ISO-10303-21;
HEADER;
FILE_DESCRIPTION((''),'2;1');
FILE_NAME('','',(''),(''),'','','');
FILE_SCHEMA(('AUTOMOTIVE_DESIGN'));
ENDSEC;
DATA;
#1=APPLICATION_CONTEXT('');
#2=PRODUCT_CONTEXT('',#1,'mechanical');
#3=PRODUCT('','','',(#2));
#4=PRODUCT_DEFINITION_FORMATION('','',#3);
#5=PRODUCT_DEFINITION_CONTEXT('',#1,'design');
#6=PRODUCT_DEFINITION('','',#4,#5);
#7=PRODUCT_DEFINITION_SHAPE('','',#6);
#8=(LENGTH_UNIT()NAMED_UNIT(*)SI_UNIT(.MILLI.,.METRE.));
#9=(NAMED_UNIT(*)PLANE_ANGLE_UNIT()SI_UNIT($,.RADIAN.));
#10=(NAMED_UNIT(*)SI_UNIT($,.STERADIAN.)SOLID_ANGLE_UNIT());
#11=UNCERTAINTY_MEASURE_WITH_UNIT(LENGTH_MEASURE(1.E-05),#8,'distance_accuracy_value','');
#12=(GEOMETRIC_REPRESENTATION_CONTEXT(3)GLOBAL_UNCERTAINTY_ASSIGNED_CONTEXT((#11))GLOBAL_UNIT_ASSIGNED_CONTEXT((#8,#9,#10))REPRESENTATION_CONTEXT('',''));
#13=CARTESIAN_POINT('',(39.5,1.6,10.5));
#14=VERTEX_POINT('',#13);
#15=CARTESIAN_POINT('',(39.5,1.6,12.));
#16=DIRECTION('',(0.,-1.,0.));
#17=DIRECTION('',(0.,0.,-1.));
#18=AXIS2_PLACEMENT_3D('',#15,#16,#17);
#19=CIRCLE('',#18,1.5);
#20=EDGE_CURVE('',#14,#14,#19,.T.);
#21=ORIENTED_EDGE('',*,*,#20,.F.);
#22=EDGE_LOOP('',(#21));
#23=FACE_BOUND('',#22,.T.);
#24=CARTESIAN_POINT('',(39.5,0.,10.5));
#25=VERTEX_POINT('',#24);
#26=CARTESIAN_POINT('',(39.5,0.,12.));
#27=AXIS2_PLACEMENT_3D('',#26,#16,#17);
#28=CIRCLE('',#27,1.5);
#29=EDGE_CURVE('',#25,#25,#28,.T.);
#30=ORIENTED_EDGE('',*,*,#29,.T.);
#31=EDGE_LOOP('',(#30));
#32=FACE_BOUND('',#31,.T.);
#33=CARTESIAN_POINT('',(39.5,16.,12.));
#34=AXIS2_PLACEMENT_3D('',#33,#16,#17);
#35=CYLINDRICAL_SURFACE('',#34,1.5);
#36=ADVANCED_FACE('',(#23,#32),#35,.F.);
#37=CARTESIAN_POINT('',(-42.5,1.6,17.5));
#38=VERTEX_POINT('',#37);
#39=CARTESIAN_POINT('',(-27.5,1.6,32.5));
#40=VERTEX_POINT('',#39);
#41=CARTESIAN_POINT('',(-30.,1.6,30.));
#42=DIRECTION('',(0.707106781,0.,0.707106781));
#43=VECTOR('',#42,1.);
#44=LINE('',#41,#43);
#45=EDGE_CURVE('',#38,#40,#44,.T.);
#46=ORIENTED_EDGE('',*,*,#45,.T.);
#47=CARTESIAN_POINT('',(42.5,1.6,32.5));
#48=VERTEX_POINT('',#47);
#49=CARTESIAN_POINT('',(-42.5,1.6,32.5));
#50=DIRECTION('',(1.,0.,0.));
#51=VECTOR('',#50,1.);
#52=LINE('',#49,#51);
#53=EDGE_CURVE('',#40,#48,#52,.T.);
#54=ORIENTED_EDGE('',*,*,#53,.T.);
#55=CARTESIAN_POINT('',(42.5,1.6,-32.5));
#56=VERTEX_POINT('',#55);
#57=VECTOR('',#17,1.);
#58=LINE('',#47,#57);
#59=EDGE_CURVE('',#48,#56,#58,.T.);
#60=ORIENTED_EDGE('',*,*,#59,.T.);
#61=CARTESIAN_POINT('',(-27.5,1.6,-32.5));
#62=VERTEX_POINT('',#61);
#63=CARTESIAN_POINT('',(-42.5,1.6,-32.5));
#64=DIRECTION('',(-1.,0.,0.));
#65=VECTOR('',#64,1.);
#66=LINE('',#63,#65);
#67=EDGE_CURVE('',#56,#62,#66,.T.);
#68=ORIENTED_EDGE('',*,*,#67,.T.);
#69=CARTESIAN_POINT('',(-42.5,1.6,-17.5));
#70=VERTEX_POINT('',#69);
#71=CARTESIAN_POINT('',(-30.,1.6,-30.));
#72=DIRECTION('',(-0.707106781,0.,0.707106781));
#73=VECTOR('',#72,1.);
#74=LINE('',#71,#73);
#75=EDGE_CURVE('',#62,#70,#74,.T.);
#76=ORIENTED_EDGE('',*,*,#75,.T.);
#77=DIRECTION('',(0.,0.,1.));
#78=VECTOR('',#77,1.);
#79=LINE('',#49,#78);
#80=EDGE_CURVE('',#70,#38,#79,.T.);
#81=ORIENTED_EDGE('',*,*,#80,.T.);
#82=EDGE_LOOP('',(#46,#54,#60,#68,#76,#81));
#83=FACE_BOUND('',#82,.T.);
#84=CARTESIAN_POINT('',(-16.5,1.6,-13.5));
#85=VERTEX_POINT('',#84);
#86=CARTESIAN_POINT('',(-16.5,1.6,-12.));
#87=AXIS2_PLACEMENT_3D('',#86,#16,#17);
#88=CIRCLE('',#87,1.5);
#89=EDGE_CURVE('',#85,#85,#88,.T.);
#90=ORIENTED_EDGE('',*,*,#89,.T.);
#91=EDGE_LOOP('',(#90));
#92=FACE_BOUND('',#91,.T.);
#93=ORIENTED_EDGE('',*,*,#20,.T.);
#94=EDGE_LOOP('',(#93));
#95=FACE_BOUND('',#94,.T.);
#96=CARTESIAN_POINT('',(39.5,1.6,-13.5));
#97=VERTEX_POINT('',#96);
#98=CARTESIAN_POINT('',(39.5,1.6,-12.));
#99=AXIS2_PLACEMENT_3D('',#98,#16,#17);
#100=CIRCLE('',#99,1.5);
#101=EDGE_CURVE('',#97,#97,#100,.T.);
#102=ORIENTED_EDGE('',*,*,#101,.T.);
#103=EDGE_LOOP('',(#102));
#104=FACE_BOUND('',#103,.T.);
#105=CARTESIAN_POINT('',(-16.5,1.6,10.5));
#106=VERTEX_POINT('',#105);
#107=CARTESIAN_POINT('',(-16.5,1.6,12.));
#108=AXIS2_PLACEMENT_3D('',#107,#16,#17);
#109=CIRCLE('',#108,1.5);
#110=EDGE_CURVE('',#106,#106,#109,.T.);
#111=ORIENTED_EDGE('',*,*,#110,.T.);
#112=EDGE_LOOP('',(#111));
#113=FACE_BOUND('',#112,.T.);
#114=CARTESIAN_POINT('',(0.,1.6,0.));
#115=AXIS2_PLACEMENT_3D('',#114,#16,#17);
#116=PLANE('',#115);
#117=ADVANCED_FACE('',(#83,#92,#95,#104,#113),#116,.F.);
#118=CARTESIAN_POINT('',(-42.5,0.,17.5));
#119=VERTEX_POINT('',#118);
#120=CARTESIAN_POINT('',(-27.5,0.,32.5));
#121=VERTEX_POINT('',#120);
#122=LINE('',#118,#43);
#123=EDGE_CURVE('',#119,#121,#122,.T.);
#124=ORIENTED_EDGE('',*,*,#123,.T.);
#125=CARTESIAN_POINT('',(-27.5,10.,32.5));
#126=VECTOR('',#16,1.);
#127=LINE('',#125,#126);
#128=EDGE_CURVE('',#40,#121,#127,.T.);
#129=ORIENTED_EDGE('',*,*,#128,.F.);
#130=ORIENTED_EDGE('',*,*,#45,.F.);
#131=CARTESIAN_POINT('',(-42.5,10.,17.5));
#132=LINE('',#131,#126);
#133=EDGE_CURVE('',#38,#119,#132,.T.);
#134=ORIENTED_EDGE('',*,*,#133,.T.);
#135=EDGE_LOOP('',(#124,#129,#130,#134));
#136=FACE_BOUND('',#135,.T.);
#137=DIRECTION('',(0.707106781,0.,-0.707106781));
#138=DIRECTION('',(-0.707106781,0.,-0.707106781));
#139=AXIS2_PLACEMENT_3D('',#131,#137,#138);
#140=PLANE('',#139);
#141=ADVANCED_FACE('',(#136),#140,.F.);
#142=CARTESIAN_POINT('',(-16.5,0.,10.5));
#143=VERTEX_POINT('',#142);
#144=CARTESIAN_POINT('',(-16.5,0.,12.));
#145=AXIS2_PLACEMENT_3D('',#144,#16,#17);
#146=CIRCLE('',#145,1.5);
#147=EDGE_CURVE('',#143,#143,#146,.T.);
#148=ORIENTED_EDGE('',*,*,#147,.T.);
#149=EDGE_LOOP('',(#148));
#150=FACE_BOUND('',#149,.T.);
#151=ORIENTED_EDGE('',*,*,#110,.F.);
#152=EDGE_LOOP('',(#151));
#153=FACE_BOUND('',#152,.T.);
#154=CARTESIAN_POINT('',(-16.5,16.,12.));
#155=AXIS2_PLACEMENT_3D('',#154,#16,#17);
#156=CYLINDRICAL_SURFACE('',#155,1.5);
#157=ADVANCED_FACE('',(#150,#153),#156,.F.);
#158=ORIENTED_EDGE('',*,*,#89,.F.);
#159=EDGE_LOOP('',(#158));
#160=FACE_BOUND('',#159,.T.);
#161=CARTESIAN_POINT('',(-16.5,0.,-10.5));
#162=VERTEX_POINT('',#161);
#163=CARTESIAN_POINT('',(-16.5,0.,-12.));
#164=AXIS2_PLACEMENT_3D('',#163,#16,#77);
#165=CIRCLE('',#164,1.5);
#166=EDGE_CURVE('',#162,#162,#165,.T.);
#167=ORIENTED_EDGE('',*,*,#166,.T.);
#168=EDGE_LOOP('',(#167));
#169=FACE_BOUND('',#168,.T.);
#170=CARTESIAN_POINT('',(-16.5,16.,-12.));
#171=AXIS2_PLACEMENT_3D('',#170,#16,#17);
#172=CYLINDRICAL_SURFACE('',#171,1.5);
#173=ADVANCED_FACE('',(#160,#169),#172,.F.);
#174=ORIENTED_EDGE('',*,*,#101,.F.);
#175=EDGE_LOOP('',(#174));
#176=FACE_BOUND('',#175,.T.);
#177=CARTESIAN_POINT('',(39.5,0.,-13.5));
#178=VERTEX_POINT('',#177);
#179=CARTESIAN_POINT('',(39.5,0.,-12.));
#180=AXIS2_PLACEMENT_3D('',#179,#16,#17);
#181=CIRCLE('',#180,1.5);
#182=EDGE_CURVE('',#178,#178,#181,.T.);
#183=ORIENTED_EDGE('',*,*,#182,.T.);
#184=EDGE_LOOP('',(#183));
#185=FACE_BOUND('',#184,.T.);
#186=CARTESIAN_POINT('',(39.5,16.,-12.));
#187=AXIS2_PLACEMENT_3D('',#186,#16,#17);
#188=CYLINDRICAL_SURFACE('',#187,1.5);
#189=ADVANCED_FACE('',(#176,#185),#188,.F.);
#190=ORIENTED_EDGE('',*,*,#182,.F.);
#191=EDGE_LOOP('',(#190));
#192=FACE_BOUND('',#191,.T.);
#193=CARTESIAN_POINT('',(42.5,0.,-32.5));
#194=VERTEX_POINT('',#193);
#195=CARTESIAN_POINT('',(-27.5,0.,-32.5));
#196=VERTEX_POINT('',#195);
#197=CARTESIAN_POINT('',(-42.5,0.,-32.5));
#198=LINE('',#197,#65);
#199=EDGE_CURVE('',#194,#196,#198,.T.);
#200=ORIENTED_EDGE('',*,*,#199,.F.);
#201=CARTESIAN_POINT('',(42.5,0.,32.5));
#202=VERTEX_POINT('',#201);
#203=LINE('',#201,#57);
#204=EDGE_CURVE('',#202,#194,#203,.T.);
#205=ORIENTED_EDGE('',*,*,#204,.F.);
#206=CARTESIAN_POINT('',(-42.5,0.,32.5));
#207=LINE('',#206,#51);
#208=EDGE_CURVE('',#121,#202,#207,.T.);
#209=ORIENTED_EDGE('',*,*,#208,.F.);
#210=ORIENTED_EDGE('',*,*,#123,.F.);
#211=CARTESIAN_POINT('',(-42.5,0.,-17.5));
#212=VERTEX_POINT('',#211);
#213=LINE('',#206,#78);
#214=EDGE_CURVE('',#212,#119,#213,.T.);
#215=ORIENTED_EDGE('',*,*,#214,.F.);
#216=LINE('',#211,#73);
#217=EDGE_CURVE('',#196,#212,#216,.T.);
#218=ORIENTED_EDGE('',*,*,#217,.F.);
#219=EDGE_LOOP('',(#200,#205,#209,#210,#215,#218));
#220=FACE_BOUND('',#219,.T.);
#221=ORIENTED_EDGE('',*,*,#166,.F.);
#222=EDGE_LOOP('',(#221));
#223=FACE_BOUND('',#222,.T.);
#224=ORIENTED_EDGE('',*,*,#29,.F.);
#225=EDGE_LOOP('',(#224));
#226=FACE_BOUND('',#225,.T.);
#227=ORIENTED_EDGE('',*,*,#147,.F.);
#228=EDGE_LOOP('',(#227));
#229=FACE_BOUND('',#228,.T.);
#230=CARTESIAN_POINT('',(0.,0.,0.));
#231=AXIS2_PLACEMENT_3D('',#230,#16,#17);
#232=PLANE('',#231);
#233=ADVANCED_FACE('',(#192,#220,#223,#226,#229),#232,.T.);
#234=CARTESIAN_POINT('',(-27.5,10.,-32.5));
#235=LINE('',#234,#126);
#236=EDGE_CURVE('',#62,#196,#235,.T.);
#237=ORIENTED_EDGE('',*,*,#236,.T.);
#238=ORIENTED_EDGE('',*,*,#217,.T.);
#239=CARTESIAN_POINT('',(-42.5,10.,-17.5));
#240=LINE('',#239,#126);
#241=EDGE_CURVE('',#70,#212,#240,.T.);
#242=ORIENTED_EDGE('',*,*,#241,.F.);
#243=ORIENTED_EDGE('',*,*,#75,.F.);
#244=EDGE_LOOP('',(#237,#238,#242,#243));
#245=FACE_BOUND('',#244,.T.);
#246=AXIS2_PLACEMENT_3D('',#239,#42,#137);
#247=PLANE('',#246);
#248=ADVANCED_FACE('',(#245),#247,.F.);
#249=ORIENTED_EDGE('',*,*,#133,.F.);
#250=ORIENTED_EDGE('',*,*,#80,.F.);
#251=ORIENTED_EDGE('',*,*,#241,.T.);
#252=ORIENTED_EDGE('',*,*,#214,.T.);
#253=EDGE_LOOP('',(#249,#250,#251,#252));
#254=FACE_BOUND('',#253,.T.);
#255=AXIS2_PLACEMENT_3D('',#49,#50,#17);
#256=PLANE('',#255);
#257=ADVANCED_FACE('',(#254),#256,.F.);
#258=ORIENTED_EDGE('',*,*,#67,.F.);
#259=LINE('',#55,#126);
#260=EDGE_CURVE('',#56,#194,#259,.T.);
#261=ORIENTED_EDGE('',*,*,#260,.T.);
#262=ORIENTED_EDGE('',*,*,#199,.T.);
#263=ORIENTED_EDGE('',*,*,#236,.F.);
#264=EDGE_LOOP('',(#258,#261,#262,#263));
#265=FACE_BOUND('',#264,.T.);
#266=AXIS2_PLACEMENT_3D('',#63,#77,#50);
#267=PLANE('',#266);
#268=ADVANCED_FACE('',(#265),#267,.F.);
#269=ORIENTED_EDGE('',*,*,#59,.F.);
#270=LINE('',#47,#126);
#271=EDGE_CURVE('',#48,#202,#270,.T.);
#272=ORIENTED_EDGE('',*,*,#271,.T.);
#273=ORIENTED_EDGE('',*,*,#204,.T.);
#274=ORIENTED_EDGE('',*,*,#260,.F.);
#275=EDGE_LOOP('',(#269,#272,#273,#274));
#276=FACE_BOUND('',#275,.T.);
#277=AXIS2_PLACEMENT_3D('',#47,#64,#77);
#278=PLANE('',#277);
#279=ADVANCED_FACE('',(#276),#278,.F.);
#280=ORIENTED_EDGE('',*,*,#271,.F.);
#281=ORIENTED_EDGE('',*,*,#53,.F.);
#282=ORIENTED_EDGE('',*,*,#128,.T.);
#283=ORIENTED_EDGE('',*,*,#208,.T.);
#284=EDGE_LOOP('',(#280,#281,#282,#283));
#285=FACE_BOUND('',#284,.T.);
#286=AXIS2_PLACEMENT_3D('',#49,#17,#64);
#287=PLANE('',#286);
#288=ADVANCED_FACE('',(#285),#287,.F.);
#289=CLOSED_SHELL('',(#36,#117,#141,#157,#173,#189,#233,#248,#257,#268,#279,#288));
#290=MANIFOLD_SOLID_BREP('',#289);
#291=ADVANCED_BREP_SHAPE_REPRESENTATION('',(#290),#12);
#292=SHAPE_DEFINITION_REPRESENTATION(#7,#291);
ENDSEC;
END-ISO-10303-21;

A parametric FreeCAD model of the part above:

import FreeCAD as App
import Part
import Sketcher


def add_polygon(sketch, points):
    """Adds a closed chain of lines whose ends are joined by coincident constraints."""
    first, n = sketch.GeometryCount, len(points)
    for a, b in zip(points, points[1:] + points[:1]):
        sketch.addGeometry(Part.LineSegment(App.Vector(*a, 0), App.Vector(*b, 0)), False)
    for i in range(n):
        sketch.addConstraint(Sketcher.Constraint("Coincident", first + i, 2, first + (i + 1) % n, 1))

doc = App.newDocument("Part")
body = doc.addObject("PartDesign::Body", "Body")

sketch1 = body.newObject("Sketcher::SketchObject", "Sketch")
sketch1.AttachmentSupport = (doc.getObject("XZ_Plane"), [""])
sketch1.MapMode = "FlatFace"
add_polygon(sketch1, [(-42, -32), (-42, 32), (42, 32), (42, -32)])
sketch1.addConstraint(Sketcher.Constraint("Vertical", 0))
sketch1.addConstraint(Sketcher.Constraint("Horizontal", 1))
sketch1.addConstraint(Sketcher.Constraint("Vertical", 2))
sketch1.addConstraint(Sketcher.Constraint("Horizontal", 3))
sketch1.addConstraint(Sketcher.Constraint("Symmetric", 0, 2, 2, 2, -1, 1))
sketch1.addConstraint(Sketcher.Constraint("DistanceX", 1, 1, 1, 2, 85.0))
sketch1.addConstraint(Sketcher.Constraint("DistanceY", 0, 1, 0, 2, 65.0))
pad1 = body.newObject("PartDesign::Pad", "Pad")
pad1.Profile = sketch1
pad1.Length = 1.6
pad1.Reversed = True

sketch2 = body.newObject("Sketcher::SketchObject", "Sketch001")
sketch2.AttachmentSupport = (doc.getObject("XZ_Plane"), [""])
sketch2.MapMode = "FlatFace"
add_polygon(sketch2, [(-42, -18), (-42, -32), (-28, -32)])
add_polygon(sketch2, [(-28, 32), (-42, 32), (-42, 18)])
sketch2.addConstraint(Sketcher.Constraint("Vertical", 0))
sketch2.addConstraint(Sketcher.Constraint("Horizontal", 1))
sketch2.addConstraint(Sketcher.Constraint("Horizontal", 3))
sketch2.addConstraint(Sketcher.Constraint("Vertical", 4))
sketch2.addConstraint(Sketcher.Constraint("Symmetric", 0, 2, 3, 2, -1))
sketch2.addConstraint(Sketcher.Constraint("Perpendicular", 2, 5))
sketch2.addConstraint(Sketcher.Constraint("Vertical", 1, 2, 5, 2))
sketch2.addConstraint(Sketcher.Constraint("Equal", 3, 0))
sketch2.addConstraint(Sketcher.Constraint("DistanceX", 1, 1, 1, 2, 15.0))
sketch2.addConstraint(Sketcher.Constraint("DistanceY", 2, 2, 3, 2, 50.0))
sketch2.addConstraint(Sketcher.Constraint("DistanceX", 0, 2, -1, 1, 42.5))
pocket1 = body.newObject("PartDesign::Pocket", "Pocket")
pocket1.Profile = sketch2
pocket1.Length = 10

sketch3 = body.newObject("Sketcher::SketchObject", "Sketch002")
sketch3.AttachmentSupport = (doc.getObject("XZ_Plane"), [""])
sketch3.MapMode = "FlatFace"
sketch3.addGeometry(Part.Circle(App.Vector(-16.5, 12, 0), App.Vector(0, 0, 1), 1.5), False)
sketch3.addGeometry(Part.Circle(App.Vector(-16.5, -12, 0), App.Vector(0, 0, 1), 1.5), False)
sketch3.addGeometry(Part.Circle(App.Vector(39.5, 12, 0), App.Vector(0, 0, 1), 1.5), False)
sketch3.addGeometry(Part.Circle(App.Vector(39.5, -12, 0), App.Vector(0, 0, 1), 1.5), False)
sketch3.addConstraint(Sketcher.Constraint("Equal", 0, 1))
sketch3.addConstraint(Sketcher.Constraint("Equal", 1, 2))
sketch3.addConstraint(Sketcher.Constraint("Equal", 2, 3))
sketch3.addConstraint(Sketcher.Constraint("Symmetric", 0, 3, 1, 3, -1))
sketch3.addConstraint(Sketcher.Constraint("Symmetric", 2, 3, 3, 3, -1))
sketch3.addConstraint(Sketcher.Constraint("Horizontal", 0, 3, 2, 3))
sketch3.addConstraint(Sketcher.Constraint("Diameter", 0, 3.0))
sketch3.addConstraint(Sketcher.Constraint("DistanceY", -1, 1, 0, 3, 12.0))
sketch3.addConstraint(Sketcher.Constraint("DistanceX", 0, 3, 2, 3, 56.0))
sketch3.addConstraint(Sketcher.Constraint("DistanceX", 0, 3, -1, 1, 16.5))
pocket2 = body.newObject("PartDesign::Pocket", "Pocket001")
pocket2.Profile = sketch3
pocket2.Length = 16

doc.recompute()
